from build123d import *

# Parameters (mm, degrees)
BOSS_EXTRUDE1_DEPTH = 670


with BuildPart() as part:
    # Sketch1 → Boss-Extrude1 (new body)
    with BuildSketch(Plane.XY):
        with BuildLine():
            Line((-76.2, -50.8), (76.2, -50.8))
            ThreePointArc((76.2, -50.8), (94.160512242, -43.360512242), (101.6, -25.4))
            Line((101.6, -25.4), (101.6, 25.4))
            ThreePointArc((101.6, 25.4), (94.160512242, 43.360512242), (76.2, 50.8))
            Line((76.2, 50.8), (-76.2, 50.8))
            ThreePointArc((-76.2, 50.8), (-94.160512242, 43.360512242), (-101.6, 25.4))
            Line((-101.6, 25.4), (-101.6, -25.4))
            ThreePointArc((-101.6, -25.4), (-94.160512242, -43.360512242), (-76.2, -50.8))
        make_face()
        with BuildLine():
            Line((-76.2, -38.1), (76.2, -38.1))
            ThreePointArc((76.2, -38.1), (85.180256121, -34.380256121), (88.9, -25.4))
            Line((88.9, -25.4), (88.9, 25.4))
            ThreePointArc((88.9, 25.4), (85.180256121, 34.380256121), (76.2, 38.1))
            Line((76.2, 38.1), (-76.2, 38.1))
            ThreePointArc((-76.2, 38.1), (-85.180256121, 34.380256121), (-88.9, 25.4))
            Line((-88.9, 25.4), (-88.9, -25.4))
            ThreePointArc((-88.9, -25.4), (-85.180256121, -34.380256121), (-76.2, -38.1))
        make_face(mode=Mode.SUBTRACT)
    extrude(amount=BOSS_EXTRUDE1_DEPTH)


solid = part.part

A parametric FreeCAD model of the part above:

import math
import FreeCAD as App
import Part
import Sketcher

V = App.Vector
Q = App.Units.Quantity

doc = App.newDocument("Part")
params = doc.addObject("Spreadsheet::Sheet", "Params")
for row, (alias, value) in enumerate([
    ("sketch1_radius", "1 in"),
    ("sketch1_radius2", "0.5 in"),
    ("sketch1_width", "6 in"),
    ("sketch1_height", "2 in"),
    ("pad1_length", "670 mm"),
], start=1):
    params.set(f"A{row}", alias)
    params.set(f"B{row}", "=" + value)
    params.setAlias(f"B{row}", alias)

body = doc.addObject("PartDesign::Body", "Body")

# Sketch on XY plane
sketch1 = body.newObject("Sketcher::SketchObject", "Sketch")
sketch1.AttachmentSupport = (doc.getObject("XY_Plane"), [""])
sketch1.MapMode = "FlatFace"
sketch1.addGeometry([
    Part.LineSegment(V(-76, -51, 0), V(76, -51, 0)),  # 0
    Part.ArcOfCircle(Part.Circle(V(76, -25, 0), V(0, 0, 1), 25), math.radians(-90), math.radians(0)),  # 1
    Part.LineSegment(V(102, -25, 0), V(102, 25, 0)),  # 2
    Part.ArcOfCircle(Part.Circle(V(76, 25, 0), V(0, 0, 1), 25), math.radians(0), math.radians(90)),  # 3
    Part.LineSegment(V(76, 51, 0), V(-76, 51, 0)),  # 4
    Part.ArcOfCircle(Part.Circle(V(-76, 25, 0), V(0, 0, 1), 25), math.radians(90), math.radians(180)),  # 5
    Part.LineSegment(V(-102, 25, 0), V(-102, -25, 0)),  # 6
    Part.ArcOfCircle(Part.Circle(V(-76, -25, 0), V(0, 0, 1), 25), math.radians(180), math.radians(270)),  # 7
    Part.LineSegment(V(76, -38, 0), V(-76, -38, 0)),  # 8
    Part.ArcOfCircle(Part.Circle(V(-76, -25, 0), V(0, 0, 1), 13), math.radians(180), math.radians(270)),  # 9
    Part.LineSegment(V(-89, -25, 0), V(-89, 25, 0)),  # 10
    Part.ArcOfCircle(Part.Circle(V(-76, 25, 0), V(0, 0, 1), 13), math.radians(90), math.radians(180)),  # 11
    Part.LineSegment(V(-76, 38, 0), V(76, 38, 0)),  # 12
    Part.ArcOfCircle(Part.Circle(V(76, 25, 0), V(0, 0, 1), 13), math.radians(0), math.radians(90)),  # 13
    Part.LineSegment(V(89, 25, 0), V(89, -25, 0)),  # 14
    Part.ArcOfCircle(Part.Circle(V(76, -25, 0), V(0, 0, 1), 13), math.radians(-90), math.radians(0)),  # 15
], False)
sketch1.addConstraint([
    Sketcher.Constraint("Tangent", 0, 2, 1, 1),
    Sketcher.Constraint("Tangent", 1, 2, 2, 1),
    Sketcher.Constraint("Tangent", 2, 2, 3, 1),
    Sketcher.Constraint("Tangent", 3, 2, 4, 1),
    Sketcher.Constraint("Tangent", 4, 2, 5, 1),
    Sketcher.Constraint("Tangent", 5, 2, 6, 1),
    Sketcher.Constraint("Tangent", 6, 2, 7, 1),
    Sketcher.Constraint("Tangent", 7, 2, 0, 1),
    Sketcher.Constraint("Tangent", 8, 2, 9, 2),
    Sketcher.Constraint("Tangent", 9, 1, 10, 1),
    Sketcher.Constraint("Tangent", 10, 2, 11, 2),
    Sketcher.Constraint("Tangent", 11, 1, 12, 1),
    Sketcher.Constraint("Tangent", 12, 2, 13, 2),
    Sketcher.Constraint("Tangent", 13, 1, 14, 1),
    Sketcher.Constraint("Tangent", 14, 2, 15, 2),
    Sketcher.Constraint("Tangent", 15, 1, 8, 1),
    Sketcher.Constraint("Horizontal", 0),
    Sketcher.Constraint("Vertical", 2),
    Sketcher.Constraint("Horizontal", 4),
    Sketcher.Constraint("Vertical", 6),
    Sketcher.Constraint("Horizontal", 8),
    Sketcher.Constraint("Vertical", 10),
    Sketcher.Constraint("Horizontal", 12),
    Sketcher.Constraint("Vertical", 14),
    Sketcher.Constraint("Coincident", 9, 3, 7, 3),
    Sketcher.Constraint("Coincident", 11, 3, 5, 3),
    Sketcher.Constraint("Coincident", 13, 3, 3, 3),
    Sketcher.Constraint("Equal", 1, 3),
    Sketcher.Constraint("Equal", 3, 5),
    Sketcher.Constraint("Equal", 5, 7),
    Sketcher.Constraint("Equal", 13, 15),
    Sketcher.Constraint("Symmetric", 1, 3, 5, 3, -1, 1),
    Sketcher.Constraint("Radius", 1, Q("1 in")),
    Sketcher.Constraint("Radius", 9, Q("0.5 in")),
    Sketcher.Constraint("DistanceX", 0, 1, 0, 2, Q("6 in")),
    Sketcher.Constraint("DistanceY", 2, 1, 2, 2, Q("2 in")),
])
sketch1.setExpression("Constraints[32]", "Params.sketch1_radius")
sketch1.setExpression("Constraints[33]", "Params.sketch1_radius2")
sketch1.setExpression("Constraints[34]", "Params.sketch1_width")
sketch1.setExpression("Constraints[35]", "Params.sketch1_height")
pad1 = body.newObject("PartDesign::Pad", "Pad")
pad1.Profile = sketch1
pad1.setExpression("Length", "Params.pad1_length")

doc.recompute()
